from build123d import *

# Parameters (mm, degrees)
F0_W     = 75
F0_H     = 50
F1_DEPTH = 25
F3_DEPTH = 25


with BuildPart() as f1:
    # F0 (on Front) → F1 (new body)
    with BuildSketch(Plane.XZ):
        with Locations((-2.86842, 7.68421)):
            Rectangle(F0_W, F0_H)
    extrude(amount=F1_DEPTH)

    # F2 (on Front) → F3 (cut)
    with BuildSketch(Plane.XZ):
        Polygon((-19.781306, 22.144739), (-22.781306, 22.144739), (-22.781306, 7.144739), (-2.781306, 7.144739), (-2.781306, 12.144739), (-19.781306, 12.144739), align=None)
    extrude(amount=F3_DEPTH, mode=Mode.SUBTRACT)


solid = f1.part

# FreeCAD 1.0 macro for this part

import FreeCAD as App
import Part
import Sketcher
Q = App.Units.Quantity

doc = App.newDocument("Part")
params = doc.addObject("Spreadsheet::Sheet", "Params")
for row, (alias, value) in enumerate([
    ("sketch1_width", "75 mm"),
    ("sketch1_height", "50 mm"),
    ("pad1_length", "25 mm"),
    ("sketch2_width", "3 mm"),
    ("sketch2_width2", "20 mm"),
    ("sketch2_height", "15 mm"),
    ("sketch2_height2", "5 mm"),
    ("pocket1_length", "25 mm"),
], start=1):
    params.set(f"A{row}", alias)
    params.set(f"B{row}", "=" + value)
    params.setAlias(f"B{row}", alias)

body = doc.addObject("PartDesign::Body", "Body")

# Sketch on XZ plane
sketch1 = doc.addObject("Sketcher::SketchObject", "Sketch")
body.addObject(sketch1)
sketch1.AttachmentSupport = (doc.XZ_Plane, [""])
sketch1.MapMode = "FlatFace"
sketch1.addGeometry(Part.LineSegment(App.Vector(-40, 33, 0), App.Vector(-40, -17, 0)), False)
sketch1.addGeometry(Part.LineSegment(App.Vector(-40, -17, 0), App.Vector(35, -17, 0)), False)
sketch1.addGeometry(Part.LineSegment(App.Vector(35, -17, 0), App.Vector(35, 33, 0)), False)
sketch1.addGeometry(Part.LineSegment(App.Vector(35, 33, 0), App.Vector(-40, 33, 0)), False)
sketch1.addConstraint(Sketcher.Constraint("Coincident", 0, 2, 1, 1))
sketch1.addConstraint(Sketcher.Constraint("Coincident", 1, 2, 2, 1))
sketch1.addConstraint(Sketcher.Constraint("Coincident", 2, 2, 3, 1))
sketch1.addConstraint(Sketcher.Constraint("Coincident", 3, 2, 0, 1))
sketch1.addConstraint(Sketcher.Constraint("Vertical", 0))
sketch1.addConstraint(Sketcher.Constraint("Horizontal", 1))
sketch1.addConstraint(Sketcher.Constraint("Vertical", 2))
sketch1.addConstraint(Sketcher.Constraint("Horizontal", 3))
sketch1.addConstraint(Sketcher.Constraint("DistanceX", 1, 1, 1, 2, Q("75 mm")))
sketch1.addConstraint(Sketcher.Constraint("DistanceY", 0, 2, 0, 1, Q("50 mm")))
sketch1.addConstraint(Sketcher.Constraint("DistanceX", 0, 2, -1, 1, Q("40.36842 mm")))
sketch1.addConstraint(Sketcher.Constraint("DistanceY", 0, 2, -1, 1, Q("17.31579 mm")))
sketch1.setExpression("Constraints[8]", "Params.sketch1_width")
sketch1.setExpression("Constraints[9]", "Params.sketch1_height")
pad1 = doc.addObject("PartDesign::Pad", "Pad")
body.addObject(pad1)
pad1.Profile = sketch1
pad1.setExpression("Length", "Params.pad1_length")

# Sketch on XZ plane
sketch2 = doc.addObject("Sketcher::SketchObject", "Sketch001")
body.addObject(sketch2)
sketch2.AttachmentSupport = (doc.XZ_Plane, [""])
sketch2.MapMode = "FlatFace"
sketch2.addGeometry(Part.LineSegment(App.Vector(-19.8, 22.1, 0), App.Vector(-22.8, 22.1, 0)), False)
sketch2.addGeometry(Part.LineSegment(App.Vector(-22.8, 22.1, 0), App.Vector(-22.8, 7.1, 0)), False)
sketch2.addGeometry(Part.LineSegment(App.Vector(-22.8, 7.1, 0), App.Vector(-2.8, 7.1, 0)), False)
sketch2.addGeometry(Part.LineSegment(App.Vector(-2.8, 7.1, 0), App.Vector(-2.8, 12.1, 0)), False)
sketch2.addGeometry(Part.LineSegment(App.Vector(-2.8, 12.1, 0), App.Vector(-19.8, 12.1, 0)), False)
sketch2.addGeometry(Part.LineSegment(App.Vector(-19.8, 12.1, 0), App.Vector(-19.8, 22.1, 0)), False)
sketch2.addConstraint(Sketcher.Constraint("Coincident", 0, 2, 1, 1))
sketch2.addConstraint(Sketcher.Constraint("Coincident", 1, 2, 2, 1))
sketch2.addConstraint(Sketcher.Constraint("Coincident", 2, 2, 3, 1))
sketch2.addConstraint(Sketcher.Constraint("Coincident", 3, 2, 4, 1))
sketch2.addConstraint(Sketcher.Constraint("Coincident", 4, 2, 5, 1))
sketch2.addConstraint(Sketcher.Constraint("Coincident", 5, 2, 0, 1))
sketch2.addConstraint(Sketcher.Constraint("Horizontal", 0))
sketch2.addConstraint(Sketcher.Constraint("Vertical", 1))
sketch2.addConstraint(Sketcher.Constraint("Horizontal", 2))
sketch2.addConstraint(Sketcher.Constraint("Vertical", 3))
sketch2.addConstraint(Sketcher.Constraint("Horizontal", 4))
sketch2.addConstraint(Sketcher.Constraint("Vertical", 5))
sketch2.addConstraint(Sketcher.Constraint("DistanceX", 0, 2, 0, 1, Q("3 mm")))
sketch2.addConstraint(Sketcher.Constraint("DistanceX", 2, 1, 2, 2, Q("20 mm")))
sketch2.addConstraint(Sketcher.Constraint("DistanceY", 1, 2, 1, 1, Q("15 mm")))
sketch2.addConstraint(Sketcher.Constraint("DistanceY", 3, 1, 3, 2, Q("5 mm")))
sketch2.addConstraint(Sketcher.Constraint("DistanceY", -1, 1, 0, 2, Q("22.144739 mm")))
sketch2.addConstraint(Sketcher.Constraint("DistanceX", 0, 2, -1, 1, Q("22.781306 mm")))
sketch2.setExpression("Constraints[12]", "Params.sketch2_width")
sketch2.setExpression("Constraints[13]", "Params.sketch2_width2")
sketch2.setExpression("Constraints[14]", "Params.sketch2_height")
sketch2.setExpression("Constraints[15]", "Params.sketch2_height2")
pocket1 = doc.addObject("PartDesign::Pocket", "Pocket")
body.addObject(pocket1)
pocket1.Profile = sketch2
pocket1.setExpression("Length", "Params.pocket1_length")
pocket1.Reversed = True

doc.recompute()
